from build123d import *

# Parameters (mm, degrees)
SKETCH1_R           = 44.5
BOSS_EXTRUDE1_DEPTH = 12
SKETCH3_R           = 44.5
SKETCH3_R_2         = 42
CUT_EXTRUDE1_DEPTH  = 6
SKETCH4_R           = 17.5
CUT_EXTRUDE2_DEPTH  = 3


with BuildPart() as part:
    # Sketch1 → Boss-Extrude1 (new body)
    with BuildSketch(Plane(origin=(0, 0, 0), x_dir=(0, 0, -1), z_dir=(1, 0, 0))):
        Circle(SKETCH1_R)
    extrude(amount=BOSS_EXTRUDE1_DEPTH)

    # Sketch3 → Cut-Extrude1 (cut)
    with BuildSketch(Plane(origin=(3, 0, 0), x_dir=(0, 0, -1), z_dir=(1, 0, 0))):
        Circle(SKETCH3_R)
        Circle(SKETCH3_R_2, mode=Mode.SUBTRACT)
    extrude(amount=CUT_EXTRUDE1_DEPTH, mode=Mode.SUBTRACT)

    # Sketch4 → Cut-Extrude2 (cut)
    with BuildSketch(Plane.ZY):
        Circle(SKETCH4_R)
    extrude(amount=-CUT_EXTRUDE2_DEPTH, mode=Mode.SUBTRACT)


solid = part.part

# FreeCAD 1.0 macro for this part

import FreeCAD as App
import Part
import Sketcher

doc = App.newDocument("Part")
body = doc.addObject("PartDesign::Body", "Body")

# Sketch on YZ plane
sketch1 = body.newObject("Sketcher::SketchObject", "Sketch")
sketch1.AttachmentSupport = (doc.getObject("YZ_Plane"), [""])
sketch1.MapMode = "FlatFace"
sketch1.addGeometry(Part.Circle(App.Vector(0, 0, 0), App.Vector(0, 0, 1), 44.5), False)
sketch1.addConstraint([
    Sketcher.Constraint("Coincident", 0, 3, -1, 1),
    Sketcher.Constraint("Diameter", 0, 89.0),
])
pad1 = body.newObject("PartDesign::Pad", "Pad")
pad1.Profile = sketch1
pad1.Length = 12

# Sketch on YZ plane
sketch2 = body.newObject("Sketcher::SketchObject", "Sketch001")
sketch2.AttachmentSupport = (doc.getObject("YZ_Plane"), [""])
sketch2.MapMode = "FlatFace"
sketch2.AttachmentOffset = App.Placement(App.Vector(0, 0, 3), App.Rotation())
sketch2.addGeometry([
    Part.Circle(App.Vector(0, 0, 0), App.Vector(0, 0, 1), 44.5),
    Part.Circle(App.Vector(0, 0, 0), App.Vector(0, 0, 1), 42),
], False)
sketch2.addConstraint([
    Sketcher.Constraint("Coincident", 0, 3, -1, 1),
    Sketcher.Constraint("Coincident", 1, 3, -1, 1),
    Sketcher.Constraint("Diameter", 0, 89.0),
    Sketcher.Constraint("Diameter", 1, 84.0),
])
pocket1 = body.newObject("PartDesign::Pocket", "Pocket")
pocket1.Profile = sketch2
pocket1.Length = 6
pocket1.Reversed = True

# Sketch on YZ plane
sketch3 = body.newObject("Sketcher::SketchObject", "Sketch002")
sketch3.AttachmentSupport = (doc.getObject("YZ_Plane"), [""])
sketch3.MapMode = "FlatFace"
sketch3.addGeometry(Part.Circle(App.Vector(0, 0, 0), App.Vector(0, 0, 1), 17.5), False)
sketch3.addConstraint([
    Sketcher.Constraint("Coincident", 0, 3, -1, 1),
    Sketcher.Constraint("Diameter", 0, 35.0),
])
pocket2 = body.newObject("PartDesign::Pocket", "Pocket001")
pocket2.Profile = sketch3
pocket2.Length = 3
pocket2.Reversed = True

doc.recompute()
